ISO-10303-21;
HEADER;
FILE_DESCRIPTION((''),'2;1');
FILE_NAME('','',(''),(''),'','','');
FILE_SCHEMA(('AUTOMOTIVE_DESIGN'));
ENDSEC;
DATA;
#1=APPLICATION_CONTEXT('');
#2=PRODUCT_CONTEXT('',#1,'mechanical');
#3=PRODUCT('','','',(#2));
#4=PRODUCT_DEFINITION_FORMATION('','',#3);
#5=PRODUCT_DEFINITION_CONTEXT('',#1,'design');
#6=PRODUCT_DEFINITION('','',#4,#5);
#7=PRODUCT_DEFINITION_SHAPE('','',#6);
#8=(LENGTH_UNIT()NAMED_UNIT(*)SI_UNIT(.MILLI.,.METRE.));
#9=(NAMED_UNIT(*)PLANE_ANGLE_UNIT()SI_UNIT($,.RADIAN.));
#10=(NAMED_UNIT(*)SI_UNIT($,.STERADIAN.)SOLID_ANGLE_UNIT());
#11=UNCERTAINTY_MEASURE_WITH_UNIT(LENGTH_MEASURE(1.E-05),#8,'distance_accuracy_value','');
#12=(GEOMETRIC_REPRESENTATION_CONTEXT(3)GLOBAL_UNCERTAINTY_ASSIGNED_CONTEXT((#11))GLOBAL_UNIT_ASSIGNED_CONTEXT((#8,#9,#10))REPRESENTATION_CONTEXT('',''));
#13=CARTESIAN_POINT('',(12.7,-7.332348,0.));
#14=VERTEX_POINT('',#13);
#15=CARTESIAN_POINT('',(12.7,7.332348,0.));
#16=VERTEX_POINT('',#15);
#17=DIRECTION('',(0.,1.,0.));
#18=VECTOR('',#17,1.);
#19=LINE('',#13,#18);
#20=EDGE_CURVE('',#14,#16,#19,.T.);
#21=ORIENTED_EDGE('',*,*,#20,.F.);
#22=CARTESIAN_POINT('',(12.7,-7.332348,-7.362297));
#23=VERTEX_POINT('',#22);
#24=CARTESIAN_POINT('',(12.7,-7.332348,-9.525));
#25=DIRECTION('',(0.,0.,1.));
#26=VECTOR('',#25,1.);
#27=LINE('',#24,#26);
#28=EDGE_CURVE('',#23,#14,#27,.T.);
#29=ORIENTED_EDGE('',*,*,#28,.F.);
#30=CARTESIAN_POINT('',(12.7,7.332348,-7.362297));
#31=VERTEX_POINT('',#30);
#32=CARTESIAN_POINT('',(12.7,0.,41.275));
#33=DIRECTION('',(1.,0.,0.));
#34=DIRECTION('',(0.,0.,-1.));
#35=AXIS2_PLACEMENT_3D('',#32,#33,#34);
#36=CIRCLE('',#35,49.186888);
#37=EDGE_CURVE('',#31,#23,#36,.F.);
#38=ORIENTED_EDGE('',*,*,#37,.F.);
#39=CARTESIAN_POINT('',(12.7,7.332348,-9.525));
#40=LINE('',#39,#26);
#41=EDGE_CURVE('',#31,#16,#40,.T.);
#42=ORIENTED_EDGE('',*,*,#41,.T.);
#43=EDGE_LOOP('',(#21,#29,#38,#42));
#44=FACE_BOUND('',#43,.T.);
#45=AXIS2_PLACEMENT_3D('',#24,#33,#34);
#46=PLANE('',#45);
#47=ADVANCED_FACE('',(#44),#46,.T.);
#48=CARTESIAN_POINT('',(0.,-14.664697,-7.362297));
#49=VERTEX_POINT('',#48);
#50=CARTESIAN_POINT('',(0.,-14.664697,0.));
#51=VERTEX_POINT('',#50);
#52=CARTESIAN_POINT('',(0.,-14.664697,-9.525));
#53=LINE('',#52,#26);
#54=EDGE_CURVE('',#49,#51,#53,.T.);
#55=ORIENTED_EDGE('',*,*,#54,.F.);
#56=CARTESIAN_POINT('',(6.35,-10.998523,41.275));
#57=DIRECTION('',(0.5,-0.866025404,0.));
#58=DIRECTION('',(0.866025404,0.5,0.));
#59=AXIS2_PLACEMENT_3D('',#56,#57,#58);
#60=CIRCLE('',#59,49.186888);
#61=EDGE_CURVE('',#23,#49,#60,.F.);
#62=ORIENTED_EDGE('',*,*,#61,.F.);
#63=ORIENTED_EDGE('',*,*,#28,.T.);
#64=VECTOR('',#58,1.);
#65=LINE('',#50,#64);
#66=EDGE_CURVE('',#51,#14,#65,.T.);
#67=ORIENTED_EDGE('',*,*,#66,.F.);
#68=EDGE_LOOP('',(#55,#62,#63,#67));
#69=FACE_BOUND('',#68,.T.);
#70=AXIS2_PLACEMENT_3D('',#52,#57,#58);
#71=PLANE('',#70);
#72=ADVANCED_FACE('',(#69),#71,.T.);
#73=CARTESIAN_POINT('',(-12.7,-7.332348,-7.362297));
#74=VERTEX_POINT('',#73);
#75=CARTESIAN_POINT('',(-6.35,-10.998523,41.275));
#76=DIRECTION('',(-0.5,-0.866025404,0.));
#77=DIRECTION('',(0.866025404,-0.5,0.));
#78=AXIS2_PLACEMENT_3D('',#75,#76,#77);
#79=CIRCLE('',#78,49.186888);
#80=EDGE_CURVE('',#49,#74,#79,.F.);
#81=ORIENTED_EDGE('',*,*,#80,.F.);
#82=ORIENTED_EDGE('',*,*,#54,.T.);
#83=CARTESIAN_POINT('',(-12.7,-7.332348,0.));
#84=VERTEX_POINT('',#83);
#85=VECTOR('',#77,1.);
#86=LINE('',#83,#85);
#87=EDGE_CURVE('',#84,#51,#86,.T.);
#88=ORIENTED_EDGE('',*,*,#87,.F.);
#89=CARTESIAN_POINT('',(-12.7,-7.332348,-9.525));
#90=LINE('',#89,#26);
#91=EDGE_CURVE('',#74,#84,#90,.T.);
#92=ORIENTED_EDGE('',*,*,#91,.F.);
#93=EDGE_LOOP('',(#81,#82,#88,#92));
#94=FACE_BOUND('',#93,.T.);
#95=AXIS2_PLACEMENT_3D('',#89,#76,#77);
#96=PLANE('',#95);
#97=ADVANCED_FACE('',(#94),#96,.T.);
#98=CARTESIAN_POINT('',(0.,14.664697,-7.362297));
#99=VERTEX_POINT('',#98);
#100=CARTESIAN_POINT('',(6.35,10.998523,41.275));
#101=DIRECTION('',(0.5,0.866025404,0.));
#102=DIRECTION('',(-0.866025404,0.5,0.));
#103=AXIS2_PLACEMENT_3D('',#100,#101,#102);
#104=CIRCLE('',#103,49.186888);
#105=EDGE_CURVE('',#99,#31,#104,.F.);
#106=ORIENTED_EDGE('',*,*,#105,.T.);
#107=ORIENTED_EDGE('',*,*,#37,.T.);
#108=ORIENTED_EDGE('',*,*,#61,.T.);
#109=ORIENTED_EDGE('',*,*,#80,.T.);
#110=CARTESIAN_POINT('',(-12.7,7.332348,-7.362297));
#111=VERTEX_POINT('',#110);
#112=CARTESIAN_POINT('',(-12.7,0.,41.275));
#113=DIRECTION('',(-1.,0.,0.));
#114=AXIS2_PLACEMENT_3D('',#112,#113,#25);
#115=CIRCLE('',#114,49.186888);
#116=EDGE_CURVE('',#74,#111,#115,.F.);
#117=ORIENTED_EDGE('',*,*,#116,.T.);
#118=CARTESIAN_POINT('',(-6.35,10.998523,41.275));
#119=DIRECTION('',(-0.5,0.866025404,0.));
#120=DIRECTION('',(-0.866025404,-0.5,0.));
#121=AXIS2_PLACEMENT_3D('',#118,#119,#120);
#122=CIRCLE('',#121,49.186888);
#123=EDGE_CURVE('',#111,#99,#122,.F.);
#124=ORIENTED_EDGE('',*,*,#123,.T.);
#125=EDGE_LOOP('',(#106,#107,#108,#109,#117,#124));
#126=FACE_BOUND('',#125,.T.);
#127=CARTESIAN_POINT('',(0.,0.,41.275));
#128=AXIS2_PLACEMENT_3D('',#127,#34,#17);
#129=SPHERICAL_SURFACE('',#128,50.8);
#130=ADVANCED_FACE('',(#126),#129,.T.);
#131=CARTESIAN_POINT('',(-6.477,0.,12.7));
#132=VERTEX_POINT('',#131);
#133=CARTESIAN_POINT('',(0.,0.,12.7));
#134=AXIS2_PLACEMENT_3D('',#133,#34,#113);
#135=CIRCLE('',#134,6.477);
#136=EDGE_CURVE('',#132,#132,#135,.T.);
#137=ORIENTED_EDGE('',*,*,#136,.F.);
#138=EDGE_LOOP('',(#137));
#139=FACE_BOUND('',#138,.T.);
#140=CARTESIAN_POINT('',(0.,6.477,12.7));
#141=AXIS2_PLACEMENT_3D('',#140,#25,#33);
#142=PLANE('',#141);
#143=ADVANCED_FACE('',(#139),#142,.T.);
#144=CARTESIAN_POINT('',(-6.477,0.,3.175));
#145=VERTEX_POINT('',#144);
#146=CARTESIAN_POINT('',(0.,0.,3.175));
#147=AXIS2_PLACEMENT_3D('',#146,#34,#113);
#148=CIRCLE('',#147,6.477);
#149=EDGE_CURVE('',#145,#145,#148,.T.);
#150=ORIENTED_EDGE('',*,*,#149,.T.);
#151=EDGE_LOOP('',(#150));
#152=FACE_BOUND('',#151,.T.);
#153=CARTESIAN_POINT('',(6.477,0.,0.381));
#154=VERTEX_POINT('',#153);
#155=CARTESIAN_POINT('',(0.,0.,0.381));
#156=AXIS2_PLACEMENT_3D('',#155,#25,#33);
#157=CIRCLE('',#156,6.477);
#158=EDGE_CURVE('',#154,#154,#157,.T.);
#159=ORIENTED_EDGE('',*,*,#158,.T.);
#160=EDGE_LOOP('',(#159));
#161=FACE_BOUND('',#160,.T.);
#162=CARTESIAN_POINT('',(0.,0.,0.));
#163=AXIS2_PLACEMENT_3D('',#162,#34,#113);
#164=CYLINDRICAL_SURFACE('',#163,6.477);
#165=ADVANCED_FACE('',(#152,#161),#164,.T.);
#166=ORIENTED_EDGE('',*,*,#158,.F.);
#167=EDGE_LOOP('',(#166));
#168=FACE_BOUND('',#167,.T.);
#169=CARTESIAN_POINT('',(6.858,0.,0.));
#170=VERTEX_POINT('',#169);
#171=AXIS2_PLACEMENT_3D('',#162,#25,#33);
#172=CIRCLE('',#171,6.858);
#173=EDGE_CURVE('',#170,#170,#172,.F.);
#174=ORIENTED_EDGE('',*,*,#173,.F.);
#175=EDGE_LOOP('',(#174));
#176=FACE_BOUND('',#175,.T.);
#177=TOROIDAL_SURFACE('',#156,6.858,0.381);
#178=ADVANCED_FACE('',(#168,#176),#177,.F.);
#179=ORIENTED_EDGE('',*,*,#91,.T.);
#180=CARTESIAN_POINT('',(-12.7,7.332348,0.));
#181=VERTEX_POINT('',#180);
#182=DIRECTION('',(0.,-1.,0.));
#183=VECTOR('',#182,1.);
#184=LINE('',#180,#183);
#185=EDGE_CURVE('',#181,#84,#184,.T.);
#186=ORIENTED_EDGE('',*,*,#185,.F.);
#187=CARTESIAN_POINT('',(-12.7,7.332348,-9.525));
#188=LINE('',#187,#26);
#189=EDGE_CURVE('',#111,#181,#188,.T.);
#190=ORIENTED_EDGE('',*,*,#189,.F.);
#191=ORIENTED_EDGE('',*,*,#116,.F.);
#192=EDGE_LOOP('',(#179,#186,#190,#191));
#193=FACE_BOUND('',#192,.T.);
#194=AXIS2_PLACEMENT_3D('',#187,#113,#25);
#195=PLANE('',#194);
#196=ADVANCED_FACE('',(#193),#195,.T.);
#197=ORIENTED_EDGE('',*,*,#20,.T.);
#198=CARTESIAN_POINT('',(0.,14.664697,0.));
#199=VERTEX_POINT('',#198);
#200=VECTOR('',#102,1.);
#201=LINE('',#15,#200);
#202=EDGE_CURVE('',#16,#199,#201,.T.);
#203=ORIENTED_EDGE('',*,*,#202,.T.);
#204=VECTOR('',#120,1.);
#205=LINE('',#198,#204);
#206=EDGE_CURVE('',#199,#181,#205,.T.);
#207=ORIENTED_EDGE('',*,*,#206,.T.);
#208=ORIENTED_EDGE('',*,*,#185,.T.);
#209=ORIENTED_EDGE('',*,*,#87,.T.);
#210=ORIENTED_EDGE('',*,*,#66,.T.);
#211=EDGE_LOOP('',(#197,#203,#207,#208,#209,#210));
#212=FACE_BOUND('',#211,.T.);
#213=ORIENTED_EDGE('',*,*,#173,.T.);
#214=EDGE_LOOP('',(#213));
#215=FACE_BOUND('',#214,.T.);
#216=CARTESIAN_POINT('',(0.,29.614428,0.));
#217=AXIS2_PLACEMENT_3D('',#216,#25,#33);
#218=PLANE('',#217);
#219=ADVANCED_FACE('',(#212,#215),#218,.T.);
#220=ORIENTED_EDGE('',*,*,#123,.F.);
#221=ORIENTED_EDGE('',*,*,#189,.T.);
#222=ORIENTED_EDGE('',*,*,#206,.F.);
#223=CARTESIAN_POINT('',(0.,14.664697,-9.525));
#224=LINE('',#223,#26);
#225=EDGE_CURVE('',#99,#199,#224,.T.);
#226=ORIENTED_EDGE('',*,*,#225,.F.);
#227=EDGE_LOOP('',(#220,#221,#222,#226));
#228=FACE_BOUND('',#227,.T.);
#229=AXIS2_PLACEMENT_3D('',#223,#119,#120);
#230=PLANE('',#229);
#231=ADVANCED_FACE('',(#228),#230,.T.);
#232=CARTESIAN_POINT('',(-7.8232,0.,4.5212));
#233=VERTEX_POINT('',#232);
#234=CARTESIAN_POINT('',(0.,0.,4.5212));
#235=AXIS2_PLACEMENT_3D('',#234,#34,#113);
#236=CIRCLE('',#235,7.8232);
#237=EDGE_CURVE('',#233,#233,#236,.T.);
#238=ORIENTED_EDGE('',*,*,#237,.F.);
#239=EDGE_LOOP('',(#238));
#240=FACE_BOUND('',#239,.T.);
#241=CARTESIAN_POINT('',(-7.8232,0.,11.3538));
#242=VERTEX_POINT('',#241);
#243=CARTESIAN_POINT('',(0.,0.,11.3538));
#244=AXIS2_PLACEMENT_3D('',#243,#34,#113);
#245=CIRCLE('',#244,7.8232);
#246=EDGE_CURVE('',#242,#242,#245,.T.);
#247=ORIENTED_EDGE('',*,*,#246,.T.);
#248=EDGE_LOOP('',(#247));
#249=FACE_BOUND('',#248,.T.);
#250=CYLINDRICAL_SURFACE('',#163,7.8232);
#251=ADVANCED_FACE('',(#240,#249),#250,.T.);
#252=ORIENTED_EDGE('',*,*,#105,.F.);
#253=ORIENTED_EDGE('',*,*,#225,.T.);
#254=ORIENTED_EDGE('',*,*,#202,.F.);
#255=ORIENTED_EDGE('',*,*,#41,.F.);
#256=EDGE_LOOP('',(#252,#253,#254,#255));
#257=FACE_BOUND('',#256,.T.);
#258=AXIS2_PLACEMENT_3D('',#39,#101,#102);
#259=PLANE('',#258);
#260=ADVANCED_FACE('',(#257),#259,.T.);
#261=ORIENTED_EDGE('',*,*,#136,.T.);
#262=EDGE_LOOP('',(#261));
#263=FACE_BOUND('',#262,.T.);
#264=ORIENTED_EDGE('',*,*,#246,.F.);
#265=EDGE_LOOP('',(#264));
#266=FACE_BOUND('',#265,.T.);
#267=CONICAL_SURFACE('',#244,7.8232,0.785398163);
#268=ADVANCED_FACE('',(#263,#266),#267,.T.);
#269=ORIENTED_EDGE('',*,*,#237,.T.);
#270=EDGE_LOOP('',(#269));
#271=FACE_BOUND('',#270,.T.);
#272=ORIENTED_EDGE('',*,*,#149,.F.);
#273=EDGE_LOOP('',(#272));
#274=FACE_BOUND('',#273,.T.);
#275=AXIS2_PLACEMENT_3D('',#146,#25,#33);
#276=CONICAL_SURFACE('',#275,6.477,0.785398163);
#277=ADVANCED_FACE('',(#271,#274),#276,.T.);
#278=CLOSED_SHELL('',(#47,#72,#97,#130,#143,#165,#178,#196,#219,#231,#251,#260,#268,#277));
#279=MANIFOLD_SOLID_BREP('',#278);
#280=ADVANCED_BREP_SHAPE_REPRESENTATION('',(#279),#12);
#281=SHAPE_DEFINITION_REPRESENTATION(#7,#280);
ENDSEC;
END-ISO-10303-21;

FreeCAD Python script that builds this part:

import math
import FreeCAD as App
import Part
import Sketcher
Q = App.Units.Quantity


def edges_at(feature, points):
    """Names of the edges that pass closest to the given points."""
    edges = feature.Shape.Edges
    near = lambda p: min(range(len(edges)), key=lambda i: edges[i].distToShape(Part.Vertex(*p))[0])
    return sorted({f"Edge{near(p) + 1}" for p in points})

doc = App.newDocument("Part")
params = doc.addObject("Spreadsheet::Sheet", "Params")
for row, (alias, value) in enumerate([
    ("sketch1_radius", "2 in"),
    ("sketch1_width", "0.255 in"),
    ("sketch1_height", "0.125 in"),
    ("sketch1_height2", "0.269 in"),
    ("revolution_angle", "360 deg"),
    ("fillet_radius", "0.015 in"),
], start=1):
    params.set(f"A{row}", alias)
    params.set(f"B{row}", "=" + value)
    params.setAlias(f"B{row}", alias)

body = doc.addObject("PartDesign::Body", "Body")

# Sketch on YZ plane
sketch1 = body.newObject("Sketcher::SketchObject", "Sketch")
sketch1.AttachmentSupport = (doc.getObject("YZ_Plane"), [""])
sketch1.MapMode = "FlatFace"
sketch1.addGeometry([
    Part.LineSegment(App.Vector(29.6, 0, 0), App.Vector(6.5, 0, 0)),  # 0
    Part.LineSegment(App.Vector(6.5, 0, 0), App.Vector(6.5, 3.2, 0)),  # 1
    Part.LineSegment(App.Vector(6.5, 3.2, 0), App.Vector(7.8, 4.5, 0)),  # 2
    Part.LineSegment(App.Vector(7.8, 4.5, 0), App.Vector(7.8, 11.4, 0)),  # 3
    Part.LineSegment(App.Vector(7.8, 11.4, 0), App.Vector(6.5, 12.7, 0)),  # 4
    Part.LineSegment(App.Vector(6.5, 12.7, 0), App.Vector(0, 12.7, 0)),  # 5
    Part.LineSegment(App.Vector(0, 12.7, 0), App.Vector(0, -9.5, 0)),  # 6
    Part.ArcOfCircle(Part.Circle(App.Vector(0, 41.3, 0), App.Vector(0, 0, 1), 50.8), math.radians(-90), math.radians(-54)),  # 7
], False)
sketch1.addConstraint([
    Sketcher.Constraint("Coincident", 0, 2, 1, 1),
    Sketcher.Constraint("Coincident", 1, 2, 2, 1),
    Sketcher.Constraint("Coincident", 2, 2, 3, 1),
    Sketcher.Constraint("Coincident", 3, 2, 4, 1),
    Sketcher.Constraint("Coincident", 4, 2, 5, 1),
    Sketcher.Constraint("Coincident", 5, 2, 6, 1),
    Sketcher.Constraint("Coincident", 6, 2, 7, 1),
    Sketcher.Constraint("Coincident", 7, 2, 0, 1),
    Sketcher.Constraint("Horizontal", 0),
    Sketcher.Constraint("Vertical", 1),
    Sketcher.Constraint("Vertical", 3),
    Sketcher.Constraint("Horizontal", 5),
    Sketcher.Constraint("Vertical", 6),
    Sketcher.Constraint("PointOnObject", 7, 3, -2),
    Sketcher.Constraint("PointOnObject", 0, 2, -1),
    Sketcher.Constraint("PointOnObject", 5, 2, -2),
    Sketcher.Constraint("Perpendicular", 2, 4),
    Sketcher.Constraint("Vertical", 1, 2, 4, 2),
    Sketcher.Constraint("Equal", 2, 4),
    Sketcher.Constraint("Radius", 7, Q("2 in")),
    Sketcher.Constraint("DistanceY", -1, 1, 4, 2, Q("0.5 in")),
    Sketcher.Constraint("DistanceY", 1, 2, 7, 3, Q("1.5 in")),
    Sketcher.Constraint("DistanceX", 5, 2, 5, 1, Q("0.255 in")),
    Sketcher.Constraint("DistanceY", 1, 1, 1, 2, Q("0.125 in")),
    Sketcher.Constraint("DistanceY", 3, 1, 3, 2, Q("0.269 in")),
])
sketch1.setExpression("Constraints[19]", "Params.sketch1_radius")
sketch1.setExpression("Constraints[22]", "Params.sketch1_width")
sketch1.setExpression("Constraints[23]", "Params.sketch1_height")
sketch1.setExpression("Constraints[24]", "Params.sketch1_height2")
revolution = body.newObject("PartDesign::Revolution", "Revolution")
revolution.Profile = sketch1
revolution.ReferenceAxis = (sketch1, ["V_Axis"])
revolution.setExpression("Angle", "Params.revolution_angle")

# Sketch on XY plane
sketch2 = body.newObject("Sketcher::SketchObject", "Sketch001")
sketch2.AttachmentSupport = (doc.getObject("XY_Plane"), [""])
sketch2.MapMode = "FlatFace"
sketch2.addGeometry([
    Part.LineSegment(App.Vector(-39, 39, 0), App.Vector(-39, -39, 0)),  # 0
    Part.LineSegment(App.Vector(-39, -39, 0), App.Vector(39, -39, 0)),  # 1
    Part.LineSegment(App.Vector(39, -39, 0), App.Vector(39, 39, 0)),  # 2
    Part.LineSegment(App.Vector(39, 39, 0), App.Vector(-39, 39, 0)),  # 3
    Part.LineSegment(App.Vector(-13, 7, 0), App.Vector(0, 15, 0)),  # 4
    Part.LineSegment(App.Vector(0, 15, 0), App.Vector(13, 7, 0)),  # 5
    Part.LineSegment(App.Vector(13, 7, 0), App.Vector(13, -7, 0)),  # 6
    Part.LineSegment(App.Vector(13, -7, 0), App.Vector(0, -15, 0)),  # 7
    Part.LineSegment(App.Vector(0, -15, 0), App.Vector(-13, -7, 0)),  # 8
    Part.LineSegment(App.Vector(-13, -7, 0), App.Vector(-13, 7, 0)),  # 9
], False)
sketch2.addConstraint([
    Sketcher.Constraint("Coincident", 0, 2, 1, 1),
    Sketcher.Constraint("Coincident", 1, 2, 2, 1),
    Sketcher.Constraint("Coincident", 2, 2, 3, 1),
    Sketcher.Constraint("Coincident", 3, 2, 0, 1),
    Sketcher.Constraint("Coincident", 4, 2, 5, 1),
    Sketcher.Constraint("Coincident", 5, 2, 6, 1),
    Sketcher.Constraint("Coincident", 6, 2, 7, 1),
    Sketcher.Constraint("Coincident", 7, 2, 8, 1),
    Sketcher.Constraint("Coincident", 8, 2, 9, 1),
    Sketcher.Constraint("Coincident", 9, 2, 4, 1),
    Sketcher.Constraint("Vertical", 0),
    Sketcher.Constraint("Horizontal", 1),
    Sketcher.Constraint("Vertical", 2),
    Sketcher.Constraint("Horizontal", 3),
    Sketcher.Constraint("Vertical", 6),
    Sketcher.Constraint("Vertical", 9),
    Sketcher.Constraint("Symmetric", 0, 2, 2, 2, -1, 1),
    Sketcher.Constraint("Symmetric", 4, 2, 7, 2, -1, 1),
    Sketcher.Constraint("Symmetric", 5, 2, 8, 2, -1, 1),
    Sketcher.Constraint("PointOnObject", 4, 2, -2),
    Sketcher.Constraint("Parallel", 4, 7),
    Sketcher.Constraint("Horizontal", 6, 2, 8, 2),
    Sketcher.Constraint("Equal", 3, 0),
    Sketcher.Constraint("Angle", 4, Q("30 deg")),
    Sketcher.Constraint("DistanceX", 8, 2, 6, 2, Q("1 in")),
    Sketcher.Constraint("DistanceX", 1, 1, 1, 2, Q("78.56 mm")),
    Sketcher.Constraint("DistanceY", 6, 2, 6, 1, Q("14.664697 mm")),
])
pocket1 = body.newObject("PartDesign::Pocket", "Pocket")
pocket1.Profile = sketch2
pocket1.Type = "ThroughAll"
doc.recompute()

fillet = body.newObject("PartDesign::Fillet", "Fillet")
fillet.Base = (pocket1, edges_at(pocket1, [(6.477, 0, 0)]))
fillet.setExpression("Radius", "Params.fillet_radius")

doc.recompute()
